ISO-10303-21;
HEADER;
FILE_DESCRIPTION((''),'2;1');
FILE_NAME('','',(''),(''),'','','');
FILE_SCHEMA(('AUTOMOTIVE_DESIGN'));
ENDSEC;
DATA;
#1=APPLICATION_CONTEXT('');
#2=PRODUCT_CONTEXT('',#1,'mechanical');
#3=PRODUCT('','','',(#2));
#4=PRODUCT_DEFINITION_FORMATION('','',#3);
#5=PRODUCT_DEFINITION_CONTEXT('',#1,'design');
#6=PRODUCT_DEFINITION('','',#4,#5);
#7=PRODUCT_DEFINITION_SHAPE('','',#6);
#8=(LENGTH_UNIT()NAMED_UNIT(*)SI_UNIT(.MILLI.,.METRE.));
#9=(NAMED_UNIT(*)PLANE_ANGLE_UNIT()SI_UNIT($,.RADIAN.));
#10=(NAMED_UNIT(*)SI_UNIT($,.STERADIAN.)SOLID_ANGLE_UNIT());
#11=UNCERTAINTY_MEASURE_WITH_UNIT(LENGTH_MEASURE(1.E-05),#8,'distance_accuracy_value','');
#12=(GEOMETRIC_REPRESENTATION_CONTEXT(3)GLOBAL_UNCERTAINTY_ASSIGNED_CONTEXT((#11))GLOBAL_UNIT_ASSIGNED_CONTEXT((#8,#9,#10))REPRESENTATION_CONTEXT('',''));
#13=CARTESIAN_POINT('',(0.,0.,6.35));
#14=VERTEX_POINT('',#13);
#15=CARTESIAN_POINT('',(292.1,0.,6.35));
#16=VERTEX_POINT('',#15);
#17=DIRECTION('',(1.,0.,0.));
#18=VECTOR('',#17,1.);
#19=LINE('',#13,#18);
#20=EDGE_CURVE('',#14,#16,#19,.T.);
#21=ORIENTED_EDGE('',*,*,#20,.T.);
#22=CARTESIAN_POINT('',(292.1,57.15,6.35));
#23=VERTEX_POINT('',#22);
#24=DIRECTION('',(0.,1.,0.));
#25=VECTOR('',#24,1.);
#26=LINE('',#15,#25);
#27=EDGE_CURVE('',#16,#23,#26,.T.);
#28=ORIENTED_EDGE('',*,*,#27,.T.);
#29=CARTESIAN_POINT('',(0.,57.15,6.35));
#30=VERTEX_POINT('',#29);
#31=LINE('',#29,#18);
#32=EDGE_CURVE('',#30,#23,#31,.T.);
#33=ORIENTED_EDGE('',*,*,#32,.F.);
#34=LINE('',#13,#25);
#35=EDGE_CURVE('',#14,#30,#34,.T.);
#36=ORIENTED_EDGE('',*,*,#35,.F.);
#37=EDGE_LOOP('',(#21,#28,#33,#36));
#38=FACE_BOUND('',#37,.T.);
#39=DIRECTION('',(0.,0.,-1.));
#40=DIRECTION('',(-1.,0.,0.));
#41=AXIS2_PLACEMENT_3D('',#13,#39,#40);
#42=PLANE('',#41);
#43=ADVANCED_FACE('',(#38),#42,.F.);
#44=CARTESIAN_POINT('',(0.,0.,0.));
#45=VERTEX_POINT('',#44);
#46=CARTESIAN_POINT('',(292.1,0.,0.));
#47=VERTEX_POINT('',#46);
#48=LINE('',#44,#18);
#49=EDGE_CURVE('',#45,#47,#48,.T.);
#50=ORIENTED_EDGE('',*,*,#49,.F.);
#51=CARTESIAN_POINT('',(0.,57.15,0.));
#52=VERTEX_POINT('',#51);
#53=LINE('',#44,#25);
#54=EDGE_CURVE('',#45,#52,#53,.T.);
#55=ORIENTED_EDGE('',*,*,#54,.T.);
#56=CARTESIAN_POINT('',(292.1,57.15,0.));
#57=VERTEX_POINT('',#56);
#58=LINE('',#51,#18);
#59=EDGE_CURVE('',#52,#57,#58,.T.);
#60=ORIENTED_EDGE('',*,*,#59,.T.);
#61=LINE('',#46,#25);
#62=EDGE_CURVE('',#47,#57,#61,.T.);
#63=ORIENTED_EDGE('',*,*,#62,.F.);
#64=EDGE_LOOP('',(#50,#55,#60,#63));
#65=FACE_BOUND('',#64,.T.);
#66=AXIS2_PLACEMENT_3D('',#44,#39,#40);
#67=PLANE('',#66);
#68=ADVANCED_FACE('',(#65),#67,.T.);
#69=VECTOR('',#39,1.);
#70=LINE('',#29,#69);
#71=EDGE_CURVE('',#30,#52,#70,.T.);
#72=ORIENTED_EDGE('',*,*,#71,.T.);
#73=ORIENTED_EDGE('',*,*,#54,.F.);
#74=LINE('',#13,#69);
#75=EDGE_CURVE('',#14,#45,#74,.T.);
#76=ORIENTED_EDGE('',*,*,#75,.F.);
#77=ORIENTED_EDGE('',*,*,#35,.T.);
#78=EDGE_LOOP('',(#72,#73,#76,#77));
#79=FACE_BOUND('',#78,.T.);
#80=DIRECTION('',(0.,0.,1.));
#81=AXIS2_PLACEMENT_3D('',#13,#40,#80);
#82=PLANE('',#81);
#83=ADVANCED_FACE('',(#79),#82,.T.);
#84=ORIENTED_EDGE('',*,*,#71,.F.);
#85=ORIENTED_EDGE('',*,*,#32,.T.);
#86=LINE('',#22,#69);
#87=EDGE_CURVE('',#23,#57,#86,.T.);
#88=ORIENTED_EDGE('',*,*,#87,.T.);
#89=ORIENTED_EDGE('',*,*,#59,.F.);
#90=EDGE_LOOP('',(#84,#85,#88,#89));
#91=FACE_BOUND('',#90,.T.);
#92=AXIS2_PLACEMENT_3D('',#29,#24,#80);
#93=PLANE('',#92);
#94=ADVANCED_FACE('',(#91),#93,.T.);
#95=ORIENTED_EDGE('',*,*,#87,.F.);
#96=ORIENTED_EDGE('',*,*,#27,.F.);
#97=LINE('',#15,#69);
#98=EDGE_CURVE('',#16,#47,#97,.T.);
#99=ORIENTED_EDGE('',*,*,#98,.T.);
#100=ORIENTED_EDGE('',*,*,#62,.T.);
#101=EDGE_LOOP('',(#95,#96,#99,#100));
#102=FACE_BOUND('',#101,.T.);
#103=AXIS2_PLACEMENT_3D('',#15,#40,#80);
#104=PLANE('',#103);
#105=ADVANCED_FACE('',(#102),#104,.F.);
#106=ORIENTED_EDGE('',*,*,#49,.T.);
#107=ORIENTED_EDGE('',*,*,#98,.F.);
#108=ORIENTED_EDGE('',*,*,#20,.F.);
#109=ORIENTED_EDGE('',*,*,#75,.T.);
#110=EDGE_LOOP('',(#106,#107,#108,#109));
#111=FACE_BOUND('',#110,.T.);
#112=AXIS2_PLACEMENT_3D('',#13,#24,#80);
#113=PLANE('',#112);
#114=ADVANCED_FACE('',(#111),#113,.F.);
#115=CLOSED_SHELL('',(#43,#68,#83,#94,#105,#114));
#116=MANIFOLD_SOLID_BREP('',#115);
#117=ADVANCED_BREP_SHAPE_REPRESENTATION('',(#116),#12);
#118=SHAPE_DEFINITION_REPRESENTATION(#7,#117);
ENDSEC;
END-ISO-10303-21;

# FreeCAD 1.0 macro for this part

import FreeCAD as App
import Part
import Sketcher

V = App.Vector
Q = App.Units.Quantity


def add_polygon(sketch, points):
    """Adds a closed chain of lines whose ends are joined by coincident constraints."""
    first, n = sketch.GeometryCount, len(points)
    for a, b in zip(points, points[1:] + points[:1]):
        sketch.addGeometry(Part.LineSegment(App.Vector(*a, 0), App.Vector(*b, 0)), False)
    for i in range(n):
        sketch.addConstraint(Sketcher.Constraint("Coincident", first + i, 2, first + (i + 1) % n, 1))

doc = App.newDocument("Part")
body = doc.addObject("PartDesign::Body", "Body")

# Sketch on XY plane
sketch1 = doc.addObject("Sketcher::SketchObject", "Sketch")
body.addObject(sketch1)
sketch1.AttachmentSupport = (doc.XY_Plane, [""])
sketch1.MapMode = "FlatFace"
add_polygon(sketch1, [(0, 57), (0, 0), (292, 0), (292, 57)])  # lines 0-3
sketch1.addConstraint([
    Sketcher.Constraint("Vertical", 0),
    Sketcher.Constraint("Horizontal", 1),
    Sketcher.Constraint("Vertical", 2),
    Sketcher.Constraint("Horizontal", 3),
    Sketcher.Constraint("Coincident", 0, 2, -1, 1),
    Sketcher.Constraint("DistanceX", 1, 1, 1, 2, Q("11.5 in")),
    Sketcher.Constraint("DistanceY", 0, 2, 0, 1, Q("2.25 in")),
])
pad1 = doc.addObject("PartDesign::Pad", "Pad")
body.addObject(pad1)
pad1.Profile = sketch1
pad1.Length = Q("0.25 in")

doc.recompute()
